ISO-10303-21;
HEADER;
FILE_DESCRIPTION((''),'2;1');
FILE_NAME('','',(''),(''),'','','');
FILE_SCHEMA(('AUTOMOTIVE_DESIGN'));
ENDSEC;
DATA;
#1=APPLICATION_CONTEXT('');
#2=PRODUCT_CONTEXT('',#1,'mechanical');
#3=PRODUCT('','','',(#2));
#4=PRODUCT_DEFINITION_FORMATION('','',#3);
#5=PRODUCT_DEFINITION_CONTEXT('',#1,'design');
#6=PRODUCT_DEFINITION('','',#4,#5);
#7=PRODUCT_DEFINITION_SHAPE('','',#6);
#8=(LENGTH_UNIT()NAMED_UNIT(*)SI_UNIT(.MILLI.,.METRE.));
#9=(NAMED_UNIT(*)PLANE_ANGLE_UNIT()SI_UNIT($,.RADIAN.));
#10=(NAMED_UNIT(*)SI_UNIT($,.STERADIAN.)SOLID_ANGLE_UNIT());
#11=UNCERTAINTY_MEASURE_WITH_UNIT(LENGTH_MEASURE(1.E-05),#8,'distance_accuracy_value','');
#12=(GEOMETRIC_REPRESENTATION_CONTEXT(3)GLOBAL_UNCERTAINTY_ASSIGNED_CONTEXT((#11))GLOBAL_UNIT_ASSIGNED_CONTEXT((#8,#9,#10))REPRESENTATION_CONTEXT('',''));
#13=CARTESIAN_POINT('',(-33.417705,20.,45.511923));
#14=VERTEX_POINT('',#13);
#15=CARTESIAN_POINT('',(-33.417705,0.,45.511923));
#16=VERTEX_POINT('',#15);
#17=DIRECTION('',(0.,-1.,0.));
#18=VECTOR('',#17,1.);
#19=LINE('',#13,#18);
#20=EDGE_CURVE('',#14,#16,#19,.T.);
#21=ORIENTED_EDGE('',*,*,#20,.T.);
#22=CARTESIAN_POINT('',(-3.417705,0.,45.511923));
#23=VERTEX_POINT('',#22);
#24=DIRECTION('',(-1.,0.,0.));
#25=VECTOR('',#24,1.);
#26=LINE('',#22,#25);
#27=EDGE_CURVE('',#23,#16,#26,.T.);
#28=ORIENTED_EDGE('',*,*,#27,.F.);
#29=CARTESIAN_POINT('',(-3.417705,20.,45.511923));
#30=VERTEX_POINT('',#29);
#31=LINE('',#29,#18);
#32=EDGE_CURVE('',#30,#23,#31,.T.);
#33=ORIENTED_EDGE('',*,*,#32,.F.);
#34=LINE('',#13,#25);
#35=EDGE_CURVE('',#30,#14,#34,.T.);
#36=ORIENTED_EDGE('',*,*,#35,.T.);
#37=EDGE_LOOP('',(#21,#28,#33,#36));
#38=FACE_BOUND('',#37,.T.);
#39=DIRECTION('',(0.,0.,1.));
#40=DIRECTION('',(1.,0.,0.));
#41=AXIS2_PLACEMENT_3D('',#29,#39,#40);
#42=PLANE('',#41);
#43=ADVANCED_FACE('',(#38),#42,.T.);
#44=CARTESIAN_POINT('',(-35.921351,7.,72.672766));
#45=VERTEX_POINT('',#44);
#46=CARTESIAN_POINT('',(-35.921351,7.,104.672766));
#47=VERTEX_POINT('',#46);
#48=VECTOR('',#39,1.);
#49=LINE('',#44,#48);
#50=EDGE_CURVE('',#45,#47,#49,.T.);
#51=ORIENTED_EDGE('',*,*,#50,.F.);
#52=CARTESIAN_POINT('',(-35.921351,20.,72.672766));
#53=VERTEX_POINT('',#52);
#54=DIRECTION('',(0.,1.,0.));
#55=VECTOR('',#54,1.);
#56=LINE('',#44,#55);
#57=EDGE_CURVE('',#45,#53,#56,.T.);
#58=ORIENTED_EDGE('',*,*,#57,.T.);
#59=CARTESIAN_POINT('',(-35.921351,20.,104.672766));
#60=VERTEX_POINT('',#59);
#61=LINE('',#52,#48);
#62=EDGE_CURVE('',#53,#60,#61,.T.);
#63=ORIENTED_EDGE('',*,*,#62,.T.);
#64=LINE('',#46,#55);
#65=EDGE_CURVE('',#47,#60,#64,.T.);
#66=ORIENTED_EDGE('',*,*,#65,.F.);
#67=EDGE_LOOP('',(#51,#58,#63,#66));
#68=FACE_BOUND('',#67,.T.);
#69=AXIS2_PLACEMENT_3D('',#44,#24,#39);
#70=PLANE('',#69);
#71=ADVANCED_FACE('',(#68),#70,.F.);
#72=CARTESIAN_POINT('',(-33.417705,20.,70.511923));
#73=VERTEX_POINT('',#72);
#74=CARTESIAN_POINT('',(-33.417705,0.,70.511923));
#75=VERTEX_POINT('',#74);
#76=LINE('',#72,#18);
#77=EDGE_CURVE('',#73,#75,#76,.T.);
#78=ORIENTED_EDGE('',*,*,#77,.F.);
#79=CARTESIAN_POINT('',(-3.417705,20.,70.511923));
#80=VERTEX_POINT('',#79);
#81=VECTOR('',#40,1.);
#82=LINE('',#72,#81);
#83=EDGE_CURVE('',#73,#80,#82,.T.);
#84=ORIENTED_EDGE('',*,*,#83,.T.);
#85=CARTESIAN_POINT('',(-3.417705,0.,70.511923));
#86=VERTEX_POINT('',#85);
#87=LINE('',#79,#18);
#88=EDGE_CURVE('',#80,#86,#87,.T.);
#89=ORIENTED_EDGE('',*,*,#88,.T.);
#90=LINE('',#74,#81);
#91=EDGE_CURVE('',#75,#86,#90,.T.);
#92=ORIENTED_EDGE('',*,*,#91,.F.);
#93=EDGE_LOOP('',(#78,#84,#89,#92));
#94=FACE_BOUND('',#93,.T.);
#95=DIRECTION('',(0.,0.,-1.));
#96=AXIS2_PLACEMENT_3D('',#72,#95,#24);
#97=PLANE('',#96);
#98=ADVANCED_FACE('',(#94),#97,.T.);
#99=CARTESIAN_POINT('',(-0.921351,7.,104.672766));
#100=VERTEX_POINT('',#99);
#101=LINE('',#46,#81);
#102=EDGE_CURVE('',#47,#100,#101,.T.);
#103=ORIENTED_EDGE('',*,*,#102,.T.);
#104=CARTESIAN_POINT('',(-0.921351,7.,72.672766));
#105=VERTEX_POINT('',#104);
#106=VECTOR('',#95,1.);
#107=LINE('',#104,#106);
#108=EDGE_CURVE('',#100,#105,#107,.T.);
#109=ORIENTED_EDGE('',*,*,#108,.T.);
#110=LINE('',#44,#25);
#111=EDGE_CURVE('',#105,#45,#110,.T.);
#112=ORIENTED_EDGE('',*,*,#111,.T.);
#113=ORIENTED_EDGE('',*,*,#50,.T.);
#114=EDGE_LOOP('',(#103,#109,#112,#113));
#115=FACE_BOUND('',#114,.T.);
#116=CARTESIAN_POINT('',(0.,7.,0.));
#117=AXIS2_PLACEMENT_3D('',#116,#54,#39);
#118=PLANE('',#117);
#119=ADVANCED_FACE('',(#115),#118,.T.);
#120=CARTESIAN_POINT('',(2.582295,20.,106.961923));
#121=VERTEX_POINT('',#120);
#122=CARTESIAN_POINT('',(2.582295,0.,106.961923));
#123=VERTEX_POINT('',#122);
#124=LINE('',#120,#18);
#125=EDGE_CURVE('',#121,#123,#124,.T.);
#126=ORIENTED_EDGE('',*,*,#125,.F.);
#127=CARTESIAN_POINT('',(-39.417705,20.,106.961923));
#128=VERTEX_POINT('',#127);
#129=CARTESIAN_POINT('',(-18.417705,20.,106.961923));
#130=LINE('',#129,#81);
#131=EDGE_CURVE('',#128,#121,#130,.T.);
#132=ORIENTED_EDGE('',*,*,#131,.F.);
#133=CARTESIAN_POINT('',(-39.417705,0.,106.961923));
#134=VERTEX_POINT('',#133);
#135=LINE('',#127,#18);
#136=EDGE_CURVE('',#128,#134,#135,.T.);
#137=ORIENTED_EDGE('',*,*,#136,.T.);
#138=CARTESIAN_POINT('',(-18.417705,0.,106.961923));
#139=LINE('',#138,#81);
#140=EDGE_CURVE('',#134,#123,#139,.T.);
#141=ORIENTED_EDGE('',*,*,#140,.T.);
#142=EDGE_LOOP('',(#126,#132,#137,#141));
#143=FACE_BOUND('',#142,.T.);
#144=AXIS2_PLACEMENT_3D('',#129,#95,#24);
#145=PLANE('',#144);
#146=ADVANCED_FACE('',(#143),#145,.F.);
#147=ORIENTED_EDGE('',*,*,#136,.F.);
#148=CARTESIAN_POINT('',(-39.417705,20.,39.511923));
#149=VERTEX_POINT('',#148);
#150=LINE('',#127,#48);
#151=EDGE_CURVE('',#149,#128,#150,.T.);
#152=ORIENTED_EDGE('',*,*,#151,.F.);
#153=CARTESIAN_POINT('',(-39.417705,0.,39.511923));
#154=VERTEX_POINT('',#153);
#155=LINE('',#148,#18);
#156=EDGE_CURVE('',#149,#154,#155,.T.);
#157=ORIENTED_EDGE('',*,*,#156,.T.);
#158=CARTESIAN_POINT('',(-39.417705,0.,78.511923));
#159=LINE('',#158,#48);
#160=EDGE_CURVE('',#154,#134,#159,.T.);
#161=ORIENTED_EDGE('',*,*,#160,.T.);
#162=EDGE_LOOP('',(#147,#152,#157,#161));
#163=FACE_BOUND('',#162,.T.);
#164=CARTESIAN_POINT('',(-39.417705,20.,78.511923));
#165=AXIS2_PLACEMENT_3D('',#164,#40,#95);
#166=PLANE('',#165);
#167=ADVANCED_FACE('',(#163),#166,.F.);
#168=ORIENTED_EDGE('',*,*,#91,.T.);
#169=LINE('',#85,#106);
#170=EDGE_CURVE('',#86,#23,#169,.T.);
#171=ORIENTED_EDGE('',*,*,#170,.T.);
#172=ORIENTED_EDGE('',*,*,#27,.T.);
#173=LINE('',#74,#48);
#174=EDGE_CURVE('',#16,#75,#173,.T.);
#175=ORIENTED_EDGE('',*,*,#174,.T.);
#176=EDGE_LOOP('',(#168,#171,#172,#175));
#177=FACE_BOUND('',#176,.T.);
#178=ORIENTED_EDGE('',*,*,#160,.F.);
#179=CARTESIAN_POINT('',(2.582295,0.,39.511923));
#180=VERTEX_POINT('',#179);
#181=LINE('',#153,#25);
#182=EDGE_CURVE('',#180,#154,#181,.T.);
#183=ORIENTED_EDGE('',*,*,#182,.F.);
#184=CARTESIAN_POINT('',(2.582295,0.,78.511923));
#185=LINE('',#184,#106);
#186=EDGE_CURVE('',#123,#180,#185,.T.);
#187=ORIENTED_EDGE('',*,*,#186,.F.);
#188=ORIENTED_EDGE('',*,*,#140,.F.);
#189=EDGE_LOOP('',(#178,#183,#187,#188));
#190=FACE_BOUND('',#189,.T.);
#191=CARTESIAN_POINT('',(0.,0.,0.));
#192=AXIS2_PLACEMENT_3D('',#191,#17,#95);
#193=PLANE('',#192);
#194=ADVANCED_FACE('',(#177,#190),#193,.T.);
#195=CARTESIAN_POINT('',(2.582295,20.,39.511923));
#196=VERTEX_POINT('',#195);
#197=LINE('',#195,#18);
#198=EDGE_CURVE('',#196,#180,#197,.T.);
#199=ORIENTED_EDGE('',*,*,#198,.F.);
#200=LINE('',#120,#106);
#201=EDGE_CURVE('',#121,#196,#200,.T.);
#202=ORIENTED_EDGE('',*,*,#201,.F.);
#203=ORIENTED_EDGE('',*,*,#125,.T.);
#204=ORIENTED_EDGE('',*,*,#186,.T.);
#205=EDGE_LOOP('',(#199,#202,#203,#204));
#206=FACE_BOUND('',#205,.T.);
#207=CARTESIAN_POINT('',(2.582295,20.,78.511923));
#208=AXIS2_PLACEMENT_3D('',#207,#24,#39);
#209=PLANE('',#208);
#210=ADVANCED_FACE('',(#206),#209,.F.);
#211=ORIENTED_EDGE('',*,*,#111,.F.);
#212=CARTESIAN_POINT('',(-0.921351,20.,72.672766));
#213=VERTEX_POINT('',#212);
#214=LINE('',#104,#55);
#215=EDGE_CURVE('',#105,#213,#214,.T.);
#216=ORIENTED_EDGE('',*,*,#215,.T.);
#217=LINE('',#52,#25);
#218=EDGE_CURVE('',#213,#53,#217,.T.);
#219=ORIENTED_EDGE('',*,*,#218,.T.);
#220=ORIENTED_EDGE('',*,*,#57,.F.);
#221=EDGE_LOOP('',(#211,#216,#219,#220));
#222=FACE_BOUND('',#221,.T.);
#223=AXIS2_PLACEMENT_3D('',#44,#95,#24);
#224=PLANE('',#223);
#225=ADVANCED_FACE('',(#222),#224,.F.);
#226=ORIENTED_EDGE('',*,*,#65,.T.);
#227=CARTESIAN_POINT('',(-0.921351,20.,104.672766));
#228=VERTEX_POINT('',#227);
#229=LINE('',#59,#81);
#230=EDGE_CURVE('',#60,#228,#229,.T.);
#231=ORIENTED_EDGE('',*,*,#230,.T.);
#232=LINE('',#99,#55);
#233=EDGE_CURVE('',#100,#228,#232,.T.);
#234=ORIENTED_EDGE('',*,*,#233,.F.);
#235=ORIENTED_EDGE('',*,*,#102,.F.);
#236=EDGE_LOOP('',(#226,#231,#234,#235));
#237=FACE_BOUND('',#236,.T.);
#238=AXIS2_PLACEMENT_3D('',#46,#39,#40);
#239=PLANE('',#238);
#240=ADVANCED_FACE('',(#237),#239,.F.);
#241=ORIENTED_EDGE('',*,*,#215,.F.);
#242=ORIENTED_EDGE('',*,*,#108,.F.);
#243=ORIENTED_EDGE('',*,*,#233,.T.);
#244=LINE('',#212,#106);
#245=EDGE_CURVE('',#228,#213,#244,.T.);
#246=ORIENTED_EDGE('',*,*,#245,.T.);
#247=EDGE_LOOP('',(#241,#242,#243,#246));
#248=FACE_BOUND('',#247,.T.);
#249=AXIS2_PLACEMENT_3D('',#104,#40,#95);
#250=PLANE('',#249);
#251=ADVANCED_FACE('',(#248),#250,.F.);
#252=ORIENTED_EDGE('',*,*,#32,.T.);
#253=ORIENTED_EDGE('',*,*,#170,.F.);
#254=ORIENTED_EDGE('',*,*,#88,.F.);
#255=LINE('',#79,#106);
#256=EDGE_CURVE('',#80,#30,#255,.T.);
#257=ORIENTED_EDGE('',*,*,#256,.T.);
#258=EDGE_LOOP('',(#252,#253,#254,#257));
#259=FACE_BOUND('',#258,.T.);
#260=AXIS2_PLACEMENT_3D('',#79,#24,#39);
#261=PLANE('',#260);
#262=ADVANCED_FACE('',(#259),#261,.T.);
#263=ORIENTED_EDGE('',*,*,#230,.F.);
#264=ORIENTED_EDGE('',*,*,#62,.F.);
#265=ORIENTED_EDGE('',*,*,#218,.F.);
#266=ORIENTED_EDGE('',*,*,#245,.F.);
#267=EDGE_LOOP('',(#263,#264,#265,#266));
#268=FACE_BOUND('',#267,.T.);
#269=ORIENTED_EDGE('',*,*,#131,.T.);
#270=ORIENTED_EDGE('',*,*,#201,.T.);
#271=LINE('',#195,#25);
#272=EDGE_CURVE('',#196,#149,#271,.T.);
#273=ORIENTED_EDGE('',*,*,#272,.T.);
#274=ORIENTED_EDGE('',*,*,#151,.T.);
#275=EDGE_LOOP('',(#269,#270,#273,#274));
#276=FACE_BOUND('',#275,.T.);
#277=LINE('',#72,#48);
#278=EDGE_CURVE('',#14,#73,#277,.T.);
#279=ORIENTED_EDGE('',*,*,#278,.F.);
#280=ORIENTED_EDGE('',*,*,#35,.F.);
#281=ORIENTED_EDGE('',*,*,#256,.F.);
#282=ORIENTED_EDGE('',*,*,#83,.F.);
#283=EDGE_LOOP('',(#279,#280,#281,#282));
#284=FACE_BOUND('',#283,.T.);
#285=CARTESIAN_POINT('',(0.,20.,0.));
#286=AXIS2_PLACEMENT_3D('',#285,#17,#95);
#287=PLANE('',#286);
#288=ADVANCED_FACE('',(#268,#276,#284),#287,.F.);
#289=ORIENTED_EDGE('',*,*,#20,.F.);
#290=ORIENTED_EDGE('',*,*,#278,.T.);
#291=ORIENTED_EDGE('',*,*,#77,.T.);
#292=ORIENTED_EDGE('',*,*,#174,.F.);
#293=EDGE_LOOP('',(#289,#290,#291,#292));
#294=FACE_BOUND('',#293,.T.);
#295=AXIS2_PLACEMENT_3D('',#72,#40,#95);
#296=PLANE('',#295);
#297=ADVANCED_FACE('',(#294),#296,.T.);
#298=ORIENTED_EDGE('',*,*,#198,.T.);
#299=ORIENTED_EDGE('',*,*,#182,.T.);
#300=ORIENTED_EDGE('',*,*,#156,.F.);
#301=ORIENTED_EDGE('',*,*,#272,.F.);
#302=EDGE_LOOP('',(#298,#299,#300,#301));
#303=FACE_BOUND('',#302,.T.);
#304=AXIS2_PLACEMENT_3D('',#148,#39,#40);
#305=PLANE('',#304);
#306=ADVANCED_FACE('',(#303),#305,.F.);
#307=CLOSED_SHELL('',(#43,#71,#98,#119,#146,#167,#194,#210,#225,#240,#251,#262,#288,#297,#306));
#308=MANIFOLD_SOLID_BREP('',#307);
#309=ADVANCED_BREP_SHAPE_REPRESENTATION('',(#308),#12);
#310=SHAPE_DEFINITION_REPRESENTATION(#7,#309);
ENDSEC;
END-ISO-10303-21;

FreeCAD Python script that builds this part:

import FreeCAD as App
import Part
import Sketcher
from FreeCAD import Vector
Q = App.Units.Quantity


def add_polygon(sketch, points):
    """Adds a closed chain of lines whose ends are joined by coincident constraints."""
    first, n = sketch.GeometryCount, len(points)
    for a, b in zip(points, points[1:] + points[:1]):
        sketch.addGeometry(Part.LineSegment(App.Vector(*a, 0), App.Vector(*b, 0)), False)
    for i in range(n):
        sketch.addConstraint(Sketcher.Constraint("Coincident", first + i, 2, first + (i + 1) % n, 1))

doc = App.newDocument("Part")
params = doc.addObject("Spreadsheet::Sheet", "Params")
for row, (alias, value) in enumerate([
    ("sketch1_width", "42 mm"),
    ("sketch1_width2", "30 mm"),
    ("sketch1_height", "25 mm"),
    ("sketch1_width3", "12.05 mm"),
    ("sketch1_height2", "67.45 mm"),
    ("pad1_length", "20 mm"),
    ("pad2_length", "20 mm"),
    ("sketch3_width", "35 mm"),
    ("sketch3_height", "32 mm"),
    ("pocket1_length", "13 mm"),
], start=1):
    params.set(f"A{row}", alias)
    params.set(f"B{row}", "=" + value)
    params.setAlias(f"B{row}", alias)

body = doc.addObject("PartDesign::Body", "Body")

sketch1 = doc.addObject("Sketcher::SketchObject", "Sketch")
body.addObject(sketch1)
sketch1.AttachmentSupport = (doc.XZ_Plane, [""])
sketch1.MapMode = "FlatFace"
add_polygon(sketch1, [(-39, 40), (-39, 107), (3, 107), (3, 40)])
add_polygon(sketch1, [(-15, 101), (-15, 79), (-3, 79), (-3, 101)])
add_polygon(sketch1, [(-33, 101), (-33, 79), (-21, 79), (-21, 101)])
add_polygon(sketch1, [(-33, 71), (-33, 46), (-3, 46), (-3, 71)])
sketch1.addConstraint([
    Sketcher.Constraint("Vertical", 0),
    Sketcher.Constraint("Horizontal", 1),
    Sketcher.Constraint("Vertical", 2),
    Sketcher.Constraint("Horizontal", 3),
    Sketcher.Constraint("Vertical", 4),
    Sketcher.Constraint("Horizontal", 5),
    Sketcher.Constraint("Vertical", 6),
    Sketcher.Constraint("Horizontal", 7),
    Sketcher.Constraint("Vertical", 8),
    Sketcher.Constraint("Horizontal", 9),
    Sketcher.Constraint("Vertical", 10),
    Sketcher.Constraint("Horizontal", 11),
    Sketcher.Constraint("Vertical", 12),
    Sketcher.Constraint("Horizontal", 13),
    Sketcher.Constraint("Vertical", 14),
    Sketcher.Constraint("Horizontal", 15),
    Sketcher.Constraint("Horizontal", 5, 2, 8, 2),
    Sketcher.Constraint("Horizontal", 7, 2, 10, 2),
    Sketcher.Constraint("Vertical", 11, 2, 12, 2),
    Sketcher.Constraint("Vertical", 6, 2, 13, 2),
    Sketcher.Constraint("Equal", 7, 9),
    Sketcher.Constraint("DistanceX", 1, 1, 1, 2, Q("42 mm")),
    Sketcher.Constraint("DistanceX", 13, 1, 13, 2, Q("30 mm")),
    Sketcher.Constraint("DistanceY", 12, 2, 12, 1, Q("25 mm")),
    Sketcher.Constraint("DistanceY", 2, 2, 4, 2, Q("39 mm")),
    Sketcher.Constraint("DistanceX", 5, 2, 1, 2, Q("6 mm")),
    Sketcher.Constraint("DistanceY", 6, 2, 1, 2, Q("6 mm")),
    Sketcher.Constraint("DistanceY", 3, 2, 12, 2, Q("6 mm")),
    Sketcher.Constraint("DistanceX", 5, 1, 5, 2, Q("12.05 mm")),
    Sketcher.Constraint("DistanceY", 0, 1, 0, 2, Q("67.45 mm")),
    Sketcher.Constraint("DistanceX", 0, 2, -1, 1, Q("39.417705 mm")),
    Sketcher.Constraint("DistanceY", -1, 1, 0, 2, Q("106.961923 mm")),
])
sketch1.setExpression("Constraints[37]", "Params.sketch1_width")
sketch1.setExpression("Constraints[38]", "Params.sketch1_width2")
sketch1.setExpression("Constraints[39]", "Params.sketch1_height")
sketch1.setExpression("Constraints[44]", "Params.sketch1_width3")
sketch1.setExpression("Constraints[45]", "Params.sketch1_height2")
pad1 = doc.addObject("PartDesign::Pad", "Pad")
body.addObject(pad1)
pad1.Profile = sketch1
pad1.setExpression("Length", "Params.pad1_length")
pad1.Reversed = True

sketch2 = doc.addObject("Sketcher::SketchObject", "Sketch001")
body.addObject(sketch2)
sketch2.AttachmentSupport = (doc.XZ_Plane, [""])
sketch2.MapMode = "FlatFace"
sketch2.AttachmentOffset = App.Placement(Vector(0, 0, -20), App.Rotation())
add_polygon(sketch2, [(-37, 74), (-37, 104), (-1, 104), (-1, 74)])
sketch2.addConstraint([
    Sketcher.Constraint("Vertical", 0),
    Sketcher.Constraint("Horizontal", 1),
    Sketcher.Constraint("Vertical", 2),
    Sketcher.Constraint("Horizontal", 3),
    Sketcher.Constraint("DistanceY", -1, 1, 0, 2, Q("103.957001 mm")),
    Sketcher.Constraint("DistanceX", 1, 1, 1, 2, Q("35.864128 mm")),
    Sketcher.Constraint("DistanceY", 0, 1, 0, 2, Q("30.19125 mm")),
    Sketcher.Constraint("DistanceX", 0, 2, -1, 1, Q("36.686296 mm")),
])
pad2 = doc.addObject("PartDesign::Pad", "Pad001")
body.addObject(pad2)
pad2.Profile = sketch2
pad2.setExpression("Length", "Params.pad2_length")

sketch3 = doc.addObject("Sketcher::SketchObject", "Sketch002")
body.addObject(sketch3)
sketch3.AttachmentSupport = (doc.XZ_Plane, [""])
sketch3.MapMode = "FlatFace"
sketch3.AttachmentOffset = App.Placement(Vector(0, 0, -20), App.Rotation())
add_polygon(sketch3, [(-36, 73), (-36, 105), (-1, 105), (-1, 73)])
sketch3.addConstraint([
    Sketcher.Constraint("Vertical", 0),
    Sketcher.Constraint("Horizontal", 1),
    Sketcher.Constraint("Vertical", 2),
    Sketcher.Constraint("Horizontal", 3),
    Sketcher.Constraint("DistanceX", 1, 1, 1, 2, Q("35 mm")),
    Sketcher.Constraint("DistanceY", 0, 1, 0, 2, Q("32 mm")),
    Sketcher.Constraint("DistanceX", 0, 2, -1, 1, Q("35.921351 mm")),
    Sketcher.Constraint("DistanceY", -1, 1, 0, 2, Q("104.672766 mm")),
])
sketch3.setExpression("Constraints[8]", "Params.sketch3_width")
sketch3.setExpression("Constraints[9]", "Params.sketch3_height")
pocket1 = doc.addObject("PartDesign::Pocket", "Pocket")
body.addObject(pocket1)
pocket1.Profile = sketch3
pocket1.setExpression("Length", "Params.pocket1_length")
pocket1.Reversed = True

doc.recompute()
